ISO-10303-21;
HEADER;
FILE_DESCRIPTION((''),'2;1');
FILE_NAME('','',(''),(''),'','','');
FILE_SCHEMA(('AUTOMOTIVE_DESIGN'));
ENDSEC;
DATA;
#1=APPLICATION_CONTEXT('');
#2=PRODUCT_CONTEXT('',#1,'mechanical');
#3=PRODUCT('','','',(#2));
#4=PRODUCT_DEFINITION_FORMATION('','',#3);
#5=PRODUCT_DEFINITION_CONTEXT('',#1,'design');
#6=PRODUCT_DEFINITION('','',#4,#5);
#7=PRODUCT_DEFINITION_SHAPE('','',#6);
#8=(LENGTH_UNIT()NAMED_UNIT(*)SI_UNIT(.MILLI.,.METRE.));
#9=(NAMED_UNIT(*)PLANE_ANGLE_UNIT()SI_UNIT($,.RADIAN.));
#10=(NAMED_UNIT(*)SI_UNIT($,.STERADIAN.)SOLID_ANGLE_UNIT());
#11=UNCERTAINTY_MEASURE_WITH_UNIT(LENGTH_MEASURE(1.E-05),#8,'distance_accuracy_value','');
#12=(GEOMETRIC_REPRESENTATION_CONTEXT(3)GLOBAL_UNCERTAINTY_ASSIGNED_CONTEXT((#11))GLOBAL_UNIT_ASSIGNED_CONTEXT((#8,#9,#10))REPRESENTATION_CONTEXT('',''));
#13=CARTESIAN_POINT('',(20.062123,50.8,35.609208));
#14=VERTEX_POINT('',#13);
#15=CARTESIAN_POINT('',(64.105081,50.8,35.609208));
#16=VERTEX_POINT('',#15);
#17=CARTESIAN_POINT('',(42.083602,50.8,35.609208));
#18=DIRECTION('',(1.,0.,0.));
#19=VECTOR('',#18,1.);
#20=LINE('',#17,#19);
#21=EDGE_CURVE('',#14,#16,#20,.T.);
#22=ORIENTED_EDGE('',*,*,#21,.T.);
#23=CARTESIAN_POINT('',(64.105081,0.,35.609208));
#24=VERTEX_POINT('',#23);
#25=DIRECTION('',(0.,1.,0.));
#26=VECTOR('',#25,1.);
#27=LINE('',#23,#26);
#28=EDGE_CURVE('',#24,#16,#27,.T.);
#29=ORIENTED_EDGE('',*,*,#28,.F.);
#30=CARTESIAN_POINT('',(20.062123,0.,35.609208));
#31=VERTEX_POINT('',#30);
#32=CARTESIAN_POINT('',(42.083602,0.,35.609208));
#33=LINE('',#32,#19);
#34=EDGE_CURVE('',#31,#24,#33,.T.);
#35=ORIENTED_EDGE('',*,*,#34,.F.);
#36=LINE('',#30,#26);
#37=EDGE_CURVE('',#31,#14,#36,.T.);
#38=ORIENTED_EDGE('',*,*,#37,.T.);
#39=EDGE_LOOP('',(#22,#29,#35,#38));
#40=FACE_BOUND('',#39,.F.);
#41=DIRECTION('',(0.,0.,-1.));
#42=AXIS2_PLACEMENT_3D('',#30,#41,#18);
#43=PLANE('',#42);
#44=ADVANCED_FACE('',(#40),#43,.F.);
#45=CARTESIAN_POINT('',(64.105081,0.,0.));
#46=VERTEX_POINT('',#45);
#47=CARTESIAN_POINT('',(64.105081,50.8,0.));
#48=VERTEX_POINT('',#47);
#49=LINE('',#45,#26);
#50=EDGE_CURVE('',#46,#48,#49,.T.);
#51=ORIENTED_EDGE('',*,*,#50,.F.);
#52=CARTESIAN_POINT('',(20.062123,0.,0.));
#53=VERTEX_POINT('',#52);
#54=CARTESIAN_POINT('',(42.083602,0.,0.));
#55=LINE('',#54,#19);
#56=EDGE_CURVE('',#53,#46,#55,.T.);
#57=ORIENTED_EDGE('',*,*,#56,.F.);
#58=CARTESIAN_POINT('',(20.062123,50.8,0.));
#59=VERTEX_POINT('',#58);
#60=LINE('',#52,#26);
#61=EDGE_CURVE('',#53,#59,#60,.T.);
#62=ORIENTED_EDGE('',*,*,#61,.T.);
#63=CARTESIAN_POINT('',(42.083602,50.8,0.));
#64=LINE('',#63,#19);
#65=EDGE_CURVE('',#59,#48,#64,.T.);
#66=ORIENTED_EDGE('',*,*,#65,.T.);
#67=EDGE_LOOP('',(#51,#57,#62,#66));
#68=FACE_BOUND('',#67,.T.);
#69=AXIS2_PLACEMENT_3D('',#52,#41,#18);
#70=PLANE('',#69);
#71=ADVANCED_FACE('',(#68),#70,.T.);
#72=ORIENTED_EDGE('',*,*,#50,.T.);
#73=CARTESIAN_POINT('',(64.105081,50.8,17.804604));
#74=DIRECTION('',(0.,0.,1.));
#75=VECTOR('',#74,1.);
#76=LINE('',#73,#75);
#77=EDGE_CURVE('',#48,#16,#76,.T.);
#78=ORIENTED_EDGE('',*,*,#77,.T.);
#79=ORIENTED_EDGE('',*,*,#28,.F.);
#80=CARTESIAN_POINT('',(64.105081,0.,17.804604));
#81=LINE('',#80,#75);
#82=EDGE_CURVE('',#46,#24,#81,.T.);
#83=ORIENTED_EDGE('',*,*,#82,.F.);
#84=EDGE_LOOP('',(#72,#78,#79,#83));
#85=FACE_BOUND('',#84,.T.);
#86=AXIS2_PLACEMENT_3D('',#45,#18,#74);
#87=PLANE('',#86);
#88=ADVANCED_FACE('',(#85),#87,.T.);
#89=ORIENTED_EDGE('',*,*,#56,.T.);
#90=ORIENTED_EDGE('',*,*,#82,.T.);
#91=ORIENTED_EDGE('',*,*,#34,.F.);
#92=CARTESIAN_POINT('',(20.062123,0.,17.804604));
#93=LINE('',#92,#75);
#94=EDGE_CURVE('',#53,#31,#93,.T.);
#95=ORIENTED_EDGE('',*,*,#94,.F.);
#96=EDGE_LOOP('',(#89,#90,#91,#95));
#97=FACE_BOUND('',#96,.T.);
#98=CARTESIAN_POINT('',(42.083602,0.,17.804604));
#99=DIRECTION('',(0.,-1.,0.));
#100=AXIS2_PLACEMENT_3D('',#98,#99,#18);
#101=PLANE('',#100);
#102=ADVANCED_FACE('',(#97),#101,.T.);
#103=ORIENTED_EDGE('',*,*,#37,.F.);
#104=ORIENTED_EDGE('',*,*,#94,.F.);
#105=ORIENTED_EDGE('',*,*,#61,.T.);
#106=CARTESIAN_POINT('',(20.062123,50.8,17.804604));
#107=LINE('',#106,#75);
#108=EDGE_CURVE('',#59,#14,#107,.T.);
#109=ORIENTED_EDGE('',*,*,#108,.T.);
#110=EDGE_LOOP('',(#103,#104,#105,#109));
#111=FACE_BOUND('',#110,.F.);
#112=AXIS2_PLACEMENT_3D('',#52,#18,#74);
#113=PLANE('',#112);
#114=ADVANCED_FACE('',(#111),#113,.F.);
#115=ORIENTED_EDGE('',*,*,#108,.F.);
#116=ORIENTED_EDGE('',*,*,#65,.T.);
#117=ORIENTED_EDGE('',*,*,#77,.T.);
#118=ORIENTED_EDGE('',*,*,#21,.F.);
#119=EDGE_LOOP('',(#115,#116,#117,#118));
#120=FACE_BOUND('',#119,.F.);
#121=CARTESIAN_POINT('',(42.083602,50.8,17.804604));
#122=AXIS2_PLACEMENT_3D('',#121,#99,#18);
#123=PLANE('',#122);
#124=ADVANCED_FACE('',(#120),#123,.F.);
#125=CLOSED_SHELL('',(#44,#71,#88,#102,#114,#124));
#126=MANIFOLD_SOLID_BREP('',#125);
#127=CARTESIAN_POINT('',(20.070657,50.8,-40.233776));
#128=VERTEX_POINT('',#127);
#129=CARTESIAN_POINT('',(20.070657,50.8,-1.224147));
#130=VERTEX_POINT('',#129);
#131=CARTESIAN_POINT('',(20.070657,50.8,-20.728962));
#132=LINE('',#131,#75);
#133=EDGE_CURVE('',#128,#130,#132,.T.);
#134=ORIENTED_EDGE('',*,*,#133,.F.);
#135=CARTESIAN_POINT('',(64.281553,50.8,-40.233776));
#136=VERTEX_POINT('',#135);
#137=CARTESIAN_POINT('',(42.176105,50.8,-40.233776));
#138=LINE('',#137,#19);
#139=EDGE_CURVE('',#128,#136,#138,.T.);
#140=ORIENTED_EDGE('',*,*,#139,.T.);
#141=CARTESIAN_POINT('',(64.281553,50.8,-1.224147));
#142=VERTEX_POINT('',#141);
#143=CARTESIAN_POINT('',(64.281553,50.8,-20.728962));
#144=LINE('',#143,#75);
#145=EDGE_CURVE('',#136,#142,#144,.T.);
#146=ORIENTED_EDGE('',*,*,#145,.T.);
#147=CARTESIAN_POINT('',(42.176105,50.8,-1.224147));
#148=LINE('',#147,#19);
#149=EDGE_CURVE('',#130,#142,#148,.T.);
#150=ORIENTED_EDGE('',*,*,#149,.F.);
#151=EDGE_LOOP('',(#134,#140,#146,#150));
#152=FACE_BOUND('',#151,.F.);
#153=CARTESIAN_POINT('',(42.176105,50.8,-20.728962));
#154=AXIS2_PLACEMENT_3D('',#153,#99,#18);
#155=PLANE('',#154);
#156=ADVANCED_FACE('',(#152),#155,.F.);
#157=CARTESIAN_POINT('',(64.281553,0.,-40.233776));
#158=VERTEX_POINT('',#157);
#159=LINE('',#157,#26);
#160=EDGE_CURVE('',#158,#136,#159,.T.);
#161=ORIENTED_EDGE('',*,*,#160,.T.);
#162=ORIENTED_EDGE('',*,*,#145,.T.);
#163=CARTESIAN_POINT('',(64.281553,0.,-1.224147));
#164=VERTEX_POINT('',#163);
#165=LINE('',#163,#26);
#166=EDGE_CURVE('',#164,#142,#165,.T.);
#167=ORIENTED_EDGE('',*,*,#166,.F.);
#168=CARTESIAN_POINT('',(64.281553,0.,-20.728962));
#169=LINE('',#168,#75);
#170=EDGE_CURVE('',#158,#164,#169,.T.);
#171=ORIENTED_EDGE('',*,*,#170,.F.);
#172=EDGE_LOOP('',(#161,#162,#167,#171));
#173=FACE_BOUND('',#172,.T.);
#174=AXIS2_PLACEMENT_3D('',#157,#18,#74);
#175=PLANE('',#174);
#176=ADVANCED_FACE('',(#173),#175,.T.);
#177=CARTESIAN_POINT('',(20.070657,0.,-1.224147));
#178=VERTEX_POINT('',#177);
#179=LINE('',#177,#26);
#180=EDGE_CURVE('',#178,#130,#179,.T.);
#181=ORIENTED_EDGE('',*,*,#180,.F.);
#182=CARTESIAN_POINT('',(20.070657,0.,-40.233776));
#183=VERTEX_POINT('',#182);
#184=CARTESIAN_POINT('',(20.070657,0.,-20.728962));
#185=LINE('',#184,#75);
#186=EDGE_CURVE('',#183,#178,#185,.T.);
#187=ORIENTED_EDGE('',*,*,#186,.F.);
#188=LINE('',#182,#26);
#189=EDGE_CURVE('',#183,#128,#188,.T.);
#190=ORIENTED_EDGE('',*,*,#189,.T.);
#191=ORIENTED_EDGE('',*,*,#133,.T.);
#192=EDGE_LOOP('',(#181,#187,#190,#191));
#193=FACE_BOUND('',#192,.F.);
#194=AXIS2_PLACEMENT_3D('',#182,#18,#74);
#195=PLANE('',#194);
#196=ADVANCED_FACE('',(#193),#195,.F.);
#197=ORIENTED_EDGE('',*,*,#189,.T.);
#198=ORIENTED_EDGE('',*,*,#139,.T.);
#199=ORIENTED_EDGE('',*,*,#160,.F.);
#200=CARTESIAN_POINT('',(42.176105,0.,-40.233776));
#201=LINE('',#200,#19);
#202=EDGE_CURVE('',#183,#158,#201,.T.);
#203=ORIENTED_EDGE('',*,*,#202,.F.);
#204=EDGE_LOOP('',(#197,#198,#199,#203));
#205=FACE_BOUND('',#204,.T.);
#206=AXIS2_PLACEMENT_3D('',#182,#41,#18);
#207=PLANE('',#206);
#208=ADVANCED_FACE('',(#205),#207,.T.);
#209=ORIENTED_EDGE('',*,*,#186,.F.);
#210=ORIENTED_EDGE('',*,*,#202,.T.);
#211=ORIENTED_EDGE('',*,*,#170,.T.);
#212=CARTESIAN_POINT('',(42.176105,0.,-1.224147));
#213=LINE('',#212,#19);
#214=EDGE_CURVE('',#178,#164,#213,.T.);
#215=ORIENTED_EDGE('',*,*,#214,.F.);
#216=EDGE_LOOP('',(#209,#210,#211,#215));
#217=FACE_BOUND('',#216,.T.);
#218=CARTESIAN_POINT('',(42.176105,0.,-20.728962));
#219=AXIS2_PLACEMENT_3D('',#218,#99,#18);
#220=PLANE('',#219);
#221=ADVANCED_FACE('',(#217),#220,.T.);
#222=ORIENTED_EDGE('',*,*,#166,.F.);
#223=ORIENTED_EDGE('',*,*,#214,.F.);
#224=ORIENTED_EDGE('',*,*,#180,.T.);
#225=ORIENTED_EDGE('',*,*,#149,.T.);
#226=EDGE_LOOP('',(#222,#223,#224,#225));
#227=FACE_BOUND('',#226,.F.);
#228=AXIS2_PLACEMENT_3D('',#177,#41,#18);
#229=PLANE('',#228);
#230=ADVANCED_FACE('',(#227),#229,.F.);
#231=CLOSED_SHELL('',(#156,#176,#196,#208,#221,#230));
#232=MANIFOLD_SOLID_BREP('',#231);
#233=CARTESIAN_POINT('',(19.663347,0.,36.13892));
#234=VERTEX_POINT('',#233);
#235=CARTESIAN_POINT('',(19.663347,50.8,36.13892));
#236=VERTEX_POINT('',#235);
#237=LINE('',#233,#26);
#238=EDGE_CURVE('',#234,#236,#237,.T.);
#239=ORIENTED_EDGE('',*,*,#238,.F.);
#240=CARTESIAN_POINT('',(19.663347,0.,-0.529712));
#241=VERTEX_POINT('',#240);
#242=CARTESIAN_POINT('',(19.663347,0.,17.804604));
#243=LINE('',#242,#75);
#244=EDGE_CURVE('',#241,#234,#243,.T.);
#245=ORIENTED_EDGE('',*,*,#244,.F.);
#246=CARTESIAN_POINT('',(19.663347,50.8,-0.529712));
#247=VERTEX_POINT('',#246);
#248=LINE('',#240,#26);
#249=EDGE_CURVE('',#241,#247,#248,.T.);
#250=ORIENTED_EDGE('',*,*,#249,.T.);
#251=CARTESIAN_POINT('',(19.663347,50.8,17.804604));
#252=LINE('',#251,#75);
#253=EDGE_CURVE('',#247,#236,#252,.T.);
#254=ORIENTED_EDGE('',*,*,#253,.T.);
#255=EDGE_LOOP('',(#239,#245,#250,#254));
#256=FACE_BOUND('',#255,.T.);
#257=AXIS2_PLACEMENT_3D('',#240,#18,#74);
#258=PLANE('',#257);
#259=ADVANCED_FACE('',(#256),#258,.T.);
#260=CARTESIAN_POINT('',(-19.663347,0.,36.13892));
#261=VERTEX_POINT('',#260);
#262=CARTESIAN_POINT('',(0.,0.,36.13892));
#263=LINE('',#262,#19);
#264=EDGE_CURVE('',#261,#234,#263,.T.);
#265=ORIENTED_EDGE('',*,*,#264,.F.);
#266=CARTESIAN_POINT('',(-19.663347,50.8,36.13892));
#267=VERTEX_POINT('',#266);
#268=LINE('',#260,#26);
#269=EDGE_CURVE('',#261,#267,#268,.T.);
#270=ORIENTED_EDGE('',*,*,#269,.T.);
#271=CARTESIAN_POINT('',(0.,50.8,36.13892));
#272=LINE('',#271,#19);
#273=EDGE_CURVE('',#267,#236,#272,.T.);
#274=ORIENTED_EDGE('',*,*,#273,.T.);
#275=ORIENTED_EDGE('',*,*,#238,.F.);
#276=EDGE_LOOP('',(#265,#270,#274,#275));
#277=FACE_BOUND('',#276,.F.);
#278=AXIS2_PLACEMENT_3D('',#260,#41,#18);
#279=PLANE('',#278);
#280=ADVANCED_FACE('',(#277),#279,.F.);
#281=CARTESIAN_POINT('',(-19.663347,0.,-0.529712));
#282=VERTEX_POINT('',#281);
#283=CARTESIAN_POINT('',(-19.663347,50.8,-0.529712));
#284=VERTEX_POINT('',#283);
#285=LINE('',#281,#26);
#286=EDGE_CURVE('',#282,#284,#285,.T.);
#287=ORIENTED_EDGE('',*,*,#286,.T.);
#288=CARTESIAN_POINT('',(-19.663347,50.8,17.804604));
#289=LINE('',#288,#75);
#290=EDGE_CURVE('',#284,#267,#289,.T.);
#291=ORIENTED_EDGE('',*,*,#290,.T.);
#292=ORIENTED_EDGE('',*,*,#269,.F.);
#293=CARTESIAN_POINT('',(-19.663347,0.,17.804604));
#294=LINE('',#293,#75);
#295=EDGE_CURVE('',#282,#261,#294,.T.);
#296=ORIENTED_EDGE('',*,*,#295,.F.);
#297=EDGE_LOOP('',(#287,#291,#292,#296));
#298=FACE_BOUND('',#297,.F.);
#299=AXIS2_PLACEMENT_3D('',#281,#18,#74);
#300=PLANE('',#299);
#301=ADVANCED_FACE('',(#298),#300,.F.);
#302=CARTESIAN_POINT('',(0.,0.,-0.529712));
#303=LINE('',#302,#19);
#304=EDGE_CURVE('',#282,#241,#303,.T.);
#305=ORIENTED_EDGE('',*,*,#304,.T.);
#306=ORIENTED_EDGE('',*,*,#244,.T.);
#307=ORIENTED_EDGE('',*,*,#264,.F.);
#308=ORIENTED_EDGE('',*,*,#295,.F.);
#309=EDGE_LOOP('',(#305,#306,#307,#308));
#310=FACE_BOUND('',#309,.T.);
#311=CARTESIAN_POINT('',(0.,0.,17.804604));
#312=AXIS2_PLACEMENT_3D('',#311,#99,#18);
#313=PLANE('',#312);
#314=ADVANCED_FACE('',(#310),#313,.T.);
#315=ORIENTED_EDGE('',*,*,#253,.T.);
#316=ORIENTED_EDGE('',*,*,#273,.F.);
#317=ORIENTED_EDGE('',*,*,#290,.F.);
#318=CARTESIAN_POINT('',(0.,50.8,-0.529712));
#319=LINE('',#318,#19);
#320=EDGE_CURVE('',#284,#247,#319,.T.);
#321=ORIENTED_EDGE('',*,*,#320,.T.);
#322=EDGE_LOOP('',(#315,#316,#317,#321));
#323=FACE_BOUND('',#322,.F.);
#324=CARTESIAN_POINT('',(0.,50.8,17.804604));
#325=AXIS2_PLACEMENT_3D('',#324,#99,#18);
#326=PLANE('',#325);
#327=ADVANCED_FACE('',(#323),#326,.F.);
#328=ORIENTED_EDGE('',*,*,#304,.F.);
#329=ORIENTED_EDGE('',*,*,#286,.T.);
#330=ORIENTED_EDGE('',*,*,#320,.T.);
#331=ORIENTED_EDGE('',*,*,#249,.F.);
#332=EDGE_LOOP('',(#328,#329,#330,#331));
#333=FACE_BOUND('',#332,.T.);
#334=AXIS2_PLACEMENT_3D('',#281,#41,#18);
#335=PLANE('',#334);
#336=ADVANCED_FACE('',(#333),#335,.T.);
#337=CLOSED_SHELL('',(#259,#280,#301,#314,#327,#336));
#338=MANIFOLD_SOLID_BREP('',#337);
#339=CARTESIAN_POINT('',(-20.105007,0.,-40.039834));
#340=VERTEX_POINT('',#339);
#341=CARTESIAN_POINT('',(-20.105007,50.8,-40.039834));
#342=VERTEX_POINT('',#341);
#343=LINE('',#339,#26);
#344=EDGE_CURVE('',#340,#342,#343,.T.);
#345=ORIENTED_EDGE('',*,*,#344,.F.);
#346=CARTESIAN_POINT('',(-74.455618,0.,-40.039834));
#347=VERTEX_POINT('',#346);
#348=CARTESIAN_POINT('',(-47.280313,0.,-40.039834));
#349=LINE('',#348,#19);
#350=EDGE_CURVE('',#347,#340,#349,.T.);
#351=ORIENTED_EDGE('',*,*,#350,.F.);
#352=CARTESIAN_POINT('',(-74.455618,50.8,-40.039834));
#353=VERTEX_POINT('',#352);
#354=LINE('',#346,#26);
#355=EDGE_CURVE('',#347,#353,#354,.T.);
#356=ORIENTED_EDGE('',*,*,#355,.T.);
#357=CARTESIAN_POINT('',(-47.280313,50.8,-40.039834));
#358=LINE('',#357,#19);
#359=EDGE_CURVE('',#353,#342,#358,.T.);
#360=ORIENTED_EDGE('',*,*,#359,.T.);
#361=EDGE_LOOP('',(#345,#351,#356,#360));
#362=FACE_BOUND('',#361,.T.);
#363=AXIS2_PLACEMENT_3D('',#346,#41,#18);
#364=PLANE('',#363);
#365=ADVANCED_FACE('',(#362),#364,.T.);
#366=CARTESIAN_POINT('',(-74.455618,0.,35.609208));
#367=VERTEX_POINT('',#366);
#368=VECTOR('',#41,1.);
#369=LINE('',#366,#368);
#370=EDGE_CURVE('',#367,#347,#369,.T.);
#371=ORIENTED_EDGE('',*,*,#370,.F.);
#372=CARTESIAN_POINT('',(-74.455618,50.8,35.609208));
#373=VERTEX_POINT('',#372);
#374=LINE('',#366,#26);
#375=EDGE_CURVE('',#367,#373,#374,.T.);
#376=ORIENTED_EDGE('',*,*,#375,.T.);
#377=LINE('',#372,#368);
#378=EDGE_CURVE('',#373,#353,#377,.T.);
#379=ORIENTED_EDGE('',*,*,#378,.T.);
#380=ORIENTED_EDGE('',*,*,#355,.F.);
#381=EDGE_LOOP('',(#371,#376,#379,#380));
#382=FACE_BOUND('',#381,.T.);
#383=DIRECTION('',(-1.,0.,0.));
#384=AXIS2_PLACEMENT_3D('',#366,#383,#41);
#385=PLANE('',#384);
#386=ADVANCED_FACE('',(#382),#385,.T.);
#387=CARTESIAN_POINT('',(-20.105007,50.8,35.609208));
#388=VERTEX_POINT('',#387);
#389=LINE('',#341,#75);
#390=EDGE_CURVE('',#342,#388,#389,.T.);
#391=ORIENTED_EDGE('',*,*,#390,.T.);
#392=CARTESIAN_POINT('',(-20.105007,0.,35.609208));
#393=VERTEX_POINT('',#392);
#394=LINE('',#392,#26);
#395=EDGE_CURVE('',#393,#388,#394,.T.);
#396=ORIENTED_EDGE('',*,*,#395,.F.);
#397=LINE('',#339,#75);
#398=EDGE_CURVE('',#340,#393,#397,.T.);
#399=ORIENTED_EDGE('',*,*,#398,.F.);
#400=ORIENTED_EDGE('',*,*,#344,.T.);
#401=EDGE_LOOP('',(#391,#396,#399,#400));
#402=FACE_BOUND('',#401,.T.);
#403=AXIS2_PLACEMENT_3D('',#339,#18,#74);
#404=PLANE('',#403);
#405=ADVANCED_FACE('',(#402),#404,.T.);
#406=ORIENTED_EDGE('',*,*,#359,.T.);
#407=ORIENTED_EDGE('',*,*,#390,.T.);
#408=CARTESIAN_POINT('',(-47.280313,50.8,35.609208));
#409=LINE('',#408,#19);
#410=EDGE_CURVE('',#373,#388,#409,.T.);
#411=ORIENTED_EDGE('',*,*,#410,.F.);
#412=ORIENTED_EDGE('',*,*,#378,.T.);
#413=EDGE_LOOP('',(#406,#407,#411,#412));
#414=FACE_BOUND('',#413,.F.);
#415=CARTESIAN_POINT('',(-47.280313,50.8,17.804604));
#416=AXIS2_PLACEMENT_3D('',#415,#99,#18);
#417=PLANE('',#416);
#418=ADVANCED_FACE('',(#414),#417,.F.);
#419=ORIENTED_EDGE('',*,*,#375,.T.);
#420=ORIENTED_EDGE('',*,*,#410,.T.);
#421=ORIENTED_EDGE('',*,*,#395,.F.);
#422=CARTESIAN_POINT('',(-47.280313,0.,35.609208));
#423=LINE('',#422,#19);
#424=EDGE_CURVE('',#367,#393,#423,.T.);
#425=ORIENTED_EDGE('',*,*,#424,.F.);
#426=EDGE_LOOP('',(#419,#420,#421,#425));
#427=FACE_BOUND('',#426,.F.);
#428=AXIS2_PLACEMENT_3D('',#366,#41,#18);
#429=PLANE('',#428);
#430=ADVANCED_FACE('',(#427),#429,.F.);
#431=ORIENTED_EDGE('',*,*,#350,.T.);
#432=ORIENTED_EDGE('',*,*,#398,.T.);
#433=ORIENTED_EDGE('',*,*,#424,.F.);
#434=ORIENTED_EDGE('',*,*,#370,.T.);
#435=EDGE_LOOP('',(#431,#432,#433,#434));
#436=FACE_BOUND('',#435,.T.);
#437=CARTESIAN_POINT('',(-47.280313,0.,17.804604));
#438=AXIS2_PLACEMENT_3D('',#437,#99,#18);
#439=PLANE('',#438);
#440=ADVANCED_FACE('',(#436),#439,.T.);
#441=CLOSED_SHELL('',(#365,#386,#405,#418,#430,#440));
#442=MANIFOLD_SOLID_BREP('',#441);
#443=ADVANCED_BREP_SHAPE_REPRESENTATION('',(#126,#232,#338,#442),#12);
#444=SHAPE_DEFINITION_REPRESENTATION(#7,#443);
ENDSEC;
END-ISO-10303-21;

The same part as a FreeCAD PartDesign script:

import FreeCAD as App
import Part
import Sketcher

V = App.Vector
Q = App.Units.Quantity

doc = App.newDocument("Part")
body = doc.addObject("PartDesign::Body", "Body")
body.AllowCompound = True

sketch1 = body.newObject("Sketcher::SketchObject", "Sketch")
sketch1.AttachmentSupport = (doc.getObject("XZ_Plane"), [""])
sketch1.MapMode = "FlatFace"
sketch1.addGeometry(Part.LineSegment(V(-74.455618, 35.609208, 0), V(-74.455618, -40.039834, 0)), False)
sketch1.addGeometry(Part.LineSegment(V(-74.455618, -40.039834, 0), V(-20.105007, -40.039834, 0)), False)
sketch1.addGeometry(Part.LineSegment(V(-20.105007, -40.039834, 0), V(-20.105007, 35.609208, 0)), False)
sketch1.addGeometry(Part.LineSegment(V(-20.105007, 35.609208, 0), V(-74.455618, 35.609208, 0)), False)
sketch1.addGeometry(Part.LineSegment(V(20.062123, 35.609208, 0), V(20.062123, 0, 0)), False)
sketch1.addGeometry(Part.LineSegment(V(20.062123, 0, 0), V(64.105081, 0, 0)), False)
sketch1.addGeometry(Part.LineSegment(V(64.105081, 0, 0), V(64.105081, 35.609208, 0)), False)
sketch1.addGeometry(Part.LineSegment(V(64.105081, 35.609208, 0), V(20.062123, 35.609208, 0)), False)
sketch1.addGeometry(Part.LineSegment(V(20.070657, -1.224147, 0), V(20.070657, -40.233776, 0)), False)
sketch1.addGeometry(Part.LineSegment(V(20.070657, -40.233776, 0), V(64.281553, -40.233776, 0)), False)
sketch1.addGeometry(Part.LineSegment(V(64.281553, -40.233776, 0), V(64.281553, -1.224147, 0)), False)
sketch1.addGeometry(Part.LineSegment(V(64.281553, -1.224147, 0), V(20.070657, -1.224147, 0)), False)
sketch1.addGeometry(Part.LineSegment(V(-19.663347, 36.13892, 0), V(-19.663347, -0.529712, 0)), False)
sketch1.addGeometry(Part.LineSegment(V(-19.663347, -0.529712, 0), V(19.663347, -0.529712, 0)), False)
sketch1.addGeometry(Part.LineSegment(V(19.663347, -0.529712, 0), V(19.663347, 36.13892, 0)), False)
sketch1.addGeometry(Part.LineSegment(V(19.663347, 36.13892, 0), V(-19.663347, 36.13892, 0)), False)
sketch1.addConstraint(Sketcher.Constraint("Coincident", 0, 2, 1, 1))
sketch1.addConstraint(Sketcher.Constraint("Coincident", 1, 2, 2, 1))
sketch1.addConstraint(Sketcher.Constraint("Coincident", 2, 2, 3, 1))
sketch1.addConstraint(Sketcher.Constraint("Coincident", 3, 2, 0, 1))
sketch1.addConstraint(Sketcher.Constraint("Coincident", 4, 2, 5, 1))
sketch1.addConstraint(Sketcher.Constraint("Coincident", 5, 2, 6, 1))
sketch1.addConstraint(Sketcher.Constraint("Coincident", 6, 2, 7, 1))
sketch1.addConstraint(Sketcher.Constraint("Coincident", 7, 2, 4, 1))
sketch1.addConstraint(Sketcher.Constraint("Coincident", 8, 2, 9, 1))
sketch1.addConstraint(Sketcher.Constraint("Coincident", 9, 2, 10, 1))
sketch1.addConstraint(Sketcher.Constraint("Coincident", 10, 2, 11, 1))
sketch1.addConstraint(Sketcher.Constraint("Coincident", 11, 2, 8, 1))
sketch1.addConstraint(Sketcher.Constraint("Coincident", 12, 2, 13, 1))
sketch1.addConstraint(Sketcher.Constraint("Coincident", 13, 2, 14, 1))
sketch1.addConstraint(Sketcher.Constraint("Coincident", 14, 2, 15, 1))
sketch1.addConstraint(Sketcher.Constraint("Coincident", 15, 2, 12, 1))
sketch1.addConstraint(Sketcher.Constraint("Vertical", 0))
sketch1.addConstraint(Sketcher.Constraint("Horizontal", 1))
sketch1.addConstraint(Sketcher.Constraint("Vertical", 2))
sketch1.addConstraint(Sketcher.Constraint("Horizontal", 3))
sketch1.addConstraint(Sketcher.Constraint("Vertical", 4))
sketch1.addConstraint(Sketcher.Constraint("Horizontal", 5))
sketch1.addConstraint(Sketcher.Constraint("Vertical", 6))
sketch1.addConstraint(Sketcher.Constraint("Horizontal", 7))
sketch1.addConstraint(Sketcher.Constraint("Vertical", 8))
sketch1.addConstraint(Sketcher.Constraint("Horizontal", 9))
sketch1.addConstraint(Sketcher.Constraint("Vertical", 10))
sketch1.addConstraint(Sketcher.Constraint("Horizontal", 11))
sketch1.addConstraint(Sketcher.Constraint("Vertical", 12))
sketch1.addConstraint(Sketcher.Constraint("Horizontal", 13))
sketch1.addConstraint(Sketcher.Constraint("Vertical", 14))
sketch1.addConstraint(Sketcher.Constraint("Horizontal", 15))
sketch1.addConstraint(Sketcher.Constraint("PointOnObject", 4, 2, -1))
sketch1.addConstraint(Sketcher.Constraint("Horizontal", 3, 2, 6, 2))
sketch1.addConstraint(Sketcher.Constraint("DistanceX", 13, 2, 4, 2, Q("0.0156998 in")))
sketch1.addConstraint(Sketcher.Constraint("DistanceX", 1, 1, 1, 2, Q("54.350611 mm")))
sketch1.addConstraint(Sketcher.Constraint("DistanceX", 5, 1, 5, 2, Q("44.042959 mm")))
sketch1.addConstraint(Sketcher.Constraint("DistanceY", 4, 2, 4, 1, Q("35.609208 mm")))
sketch1.addConstraint(Sketcher.Constraint("DistanceY", 8, 2, 8, 1, Q("39.009629 mm")))
sketch1.addConstraint(Sketcher.Constraint("DistanceX", 3, 2, 5, 2, Q("138.5607 mm")))
sketch1.addConstraint(Sketcher.Constraint("DistanceX", 9, 1, 9, 2, Q("44.210896 mm")))
sketch1.addConstraint(Sketcher.Constraint("DistanceX", 13, 1, 13, 2, Q("39.326694 mm")))
sketch1.addConstraint(Sketcher.Constraint("DistanceY", 0, 2, 0, 1, Q("75.649042 mm")))
sketch1.addConstraint(Sketcher.Constraint("DistanceY", 12, 2, 12, 1, Q("36.668632 mm")))
sketch1.addConstraint(Sketcher.Constraint("DistanceX", 0, 2, -1, 1, Q("74.455618 mm")))
sketch1.addConstraint(Sketcher.Constraint("DistanceY", 12, 2, -1, 1, Q("0.529712 mm")))
sketch1.addConstraint(Sketcher.Constraint("DistanceX", 5, 2, 9, 2, Q("0.176472 mm")))
sketch1.addConstraint(Sketcher.Constraint("DistanceY", 8, 2, -1, 1, Q("40.233776 mm")))
pad1 = body.newObject("PartDesign::Pad", "Pad")
pad1.Profile = sketch1
pad1.Length = Q("2 in")
pad1.Reversed = True

doc.recompute()
